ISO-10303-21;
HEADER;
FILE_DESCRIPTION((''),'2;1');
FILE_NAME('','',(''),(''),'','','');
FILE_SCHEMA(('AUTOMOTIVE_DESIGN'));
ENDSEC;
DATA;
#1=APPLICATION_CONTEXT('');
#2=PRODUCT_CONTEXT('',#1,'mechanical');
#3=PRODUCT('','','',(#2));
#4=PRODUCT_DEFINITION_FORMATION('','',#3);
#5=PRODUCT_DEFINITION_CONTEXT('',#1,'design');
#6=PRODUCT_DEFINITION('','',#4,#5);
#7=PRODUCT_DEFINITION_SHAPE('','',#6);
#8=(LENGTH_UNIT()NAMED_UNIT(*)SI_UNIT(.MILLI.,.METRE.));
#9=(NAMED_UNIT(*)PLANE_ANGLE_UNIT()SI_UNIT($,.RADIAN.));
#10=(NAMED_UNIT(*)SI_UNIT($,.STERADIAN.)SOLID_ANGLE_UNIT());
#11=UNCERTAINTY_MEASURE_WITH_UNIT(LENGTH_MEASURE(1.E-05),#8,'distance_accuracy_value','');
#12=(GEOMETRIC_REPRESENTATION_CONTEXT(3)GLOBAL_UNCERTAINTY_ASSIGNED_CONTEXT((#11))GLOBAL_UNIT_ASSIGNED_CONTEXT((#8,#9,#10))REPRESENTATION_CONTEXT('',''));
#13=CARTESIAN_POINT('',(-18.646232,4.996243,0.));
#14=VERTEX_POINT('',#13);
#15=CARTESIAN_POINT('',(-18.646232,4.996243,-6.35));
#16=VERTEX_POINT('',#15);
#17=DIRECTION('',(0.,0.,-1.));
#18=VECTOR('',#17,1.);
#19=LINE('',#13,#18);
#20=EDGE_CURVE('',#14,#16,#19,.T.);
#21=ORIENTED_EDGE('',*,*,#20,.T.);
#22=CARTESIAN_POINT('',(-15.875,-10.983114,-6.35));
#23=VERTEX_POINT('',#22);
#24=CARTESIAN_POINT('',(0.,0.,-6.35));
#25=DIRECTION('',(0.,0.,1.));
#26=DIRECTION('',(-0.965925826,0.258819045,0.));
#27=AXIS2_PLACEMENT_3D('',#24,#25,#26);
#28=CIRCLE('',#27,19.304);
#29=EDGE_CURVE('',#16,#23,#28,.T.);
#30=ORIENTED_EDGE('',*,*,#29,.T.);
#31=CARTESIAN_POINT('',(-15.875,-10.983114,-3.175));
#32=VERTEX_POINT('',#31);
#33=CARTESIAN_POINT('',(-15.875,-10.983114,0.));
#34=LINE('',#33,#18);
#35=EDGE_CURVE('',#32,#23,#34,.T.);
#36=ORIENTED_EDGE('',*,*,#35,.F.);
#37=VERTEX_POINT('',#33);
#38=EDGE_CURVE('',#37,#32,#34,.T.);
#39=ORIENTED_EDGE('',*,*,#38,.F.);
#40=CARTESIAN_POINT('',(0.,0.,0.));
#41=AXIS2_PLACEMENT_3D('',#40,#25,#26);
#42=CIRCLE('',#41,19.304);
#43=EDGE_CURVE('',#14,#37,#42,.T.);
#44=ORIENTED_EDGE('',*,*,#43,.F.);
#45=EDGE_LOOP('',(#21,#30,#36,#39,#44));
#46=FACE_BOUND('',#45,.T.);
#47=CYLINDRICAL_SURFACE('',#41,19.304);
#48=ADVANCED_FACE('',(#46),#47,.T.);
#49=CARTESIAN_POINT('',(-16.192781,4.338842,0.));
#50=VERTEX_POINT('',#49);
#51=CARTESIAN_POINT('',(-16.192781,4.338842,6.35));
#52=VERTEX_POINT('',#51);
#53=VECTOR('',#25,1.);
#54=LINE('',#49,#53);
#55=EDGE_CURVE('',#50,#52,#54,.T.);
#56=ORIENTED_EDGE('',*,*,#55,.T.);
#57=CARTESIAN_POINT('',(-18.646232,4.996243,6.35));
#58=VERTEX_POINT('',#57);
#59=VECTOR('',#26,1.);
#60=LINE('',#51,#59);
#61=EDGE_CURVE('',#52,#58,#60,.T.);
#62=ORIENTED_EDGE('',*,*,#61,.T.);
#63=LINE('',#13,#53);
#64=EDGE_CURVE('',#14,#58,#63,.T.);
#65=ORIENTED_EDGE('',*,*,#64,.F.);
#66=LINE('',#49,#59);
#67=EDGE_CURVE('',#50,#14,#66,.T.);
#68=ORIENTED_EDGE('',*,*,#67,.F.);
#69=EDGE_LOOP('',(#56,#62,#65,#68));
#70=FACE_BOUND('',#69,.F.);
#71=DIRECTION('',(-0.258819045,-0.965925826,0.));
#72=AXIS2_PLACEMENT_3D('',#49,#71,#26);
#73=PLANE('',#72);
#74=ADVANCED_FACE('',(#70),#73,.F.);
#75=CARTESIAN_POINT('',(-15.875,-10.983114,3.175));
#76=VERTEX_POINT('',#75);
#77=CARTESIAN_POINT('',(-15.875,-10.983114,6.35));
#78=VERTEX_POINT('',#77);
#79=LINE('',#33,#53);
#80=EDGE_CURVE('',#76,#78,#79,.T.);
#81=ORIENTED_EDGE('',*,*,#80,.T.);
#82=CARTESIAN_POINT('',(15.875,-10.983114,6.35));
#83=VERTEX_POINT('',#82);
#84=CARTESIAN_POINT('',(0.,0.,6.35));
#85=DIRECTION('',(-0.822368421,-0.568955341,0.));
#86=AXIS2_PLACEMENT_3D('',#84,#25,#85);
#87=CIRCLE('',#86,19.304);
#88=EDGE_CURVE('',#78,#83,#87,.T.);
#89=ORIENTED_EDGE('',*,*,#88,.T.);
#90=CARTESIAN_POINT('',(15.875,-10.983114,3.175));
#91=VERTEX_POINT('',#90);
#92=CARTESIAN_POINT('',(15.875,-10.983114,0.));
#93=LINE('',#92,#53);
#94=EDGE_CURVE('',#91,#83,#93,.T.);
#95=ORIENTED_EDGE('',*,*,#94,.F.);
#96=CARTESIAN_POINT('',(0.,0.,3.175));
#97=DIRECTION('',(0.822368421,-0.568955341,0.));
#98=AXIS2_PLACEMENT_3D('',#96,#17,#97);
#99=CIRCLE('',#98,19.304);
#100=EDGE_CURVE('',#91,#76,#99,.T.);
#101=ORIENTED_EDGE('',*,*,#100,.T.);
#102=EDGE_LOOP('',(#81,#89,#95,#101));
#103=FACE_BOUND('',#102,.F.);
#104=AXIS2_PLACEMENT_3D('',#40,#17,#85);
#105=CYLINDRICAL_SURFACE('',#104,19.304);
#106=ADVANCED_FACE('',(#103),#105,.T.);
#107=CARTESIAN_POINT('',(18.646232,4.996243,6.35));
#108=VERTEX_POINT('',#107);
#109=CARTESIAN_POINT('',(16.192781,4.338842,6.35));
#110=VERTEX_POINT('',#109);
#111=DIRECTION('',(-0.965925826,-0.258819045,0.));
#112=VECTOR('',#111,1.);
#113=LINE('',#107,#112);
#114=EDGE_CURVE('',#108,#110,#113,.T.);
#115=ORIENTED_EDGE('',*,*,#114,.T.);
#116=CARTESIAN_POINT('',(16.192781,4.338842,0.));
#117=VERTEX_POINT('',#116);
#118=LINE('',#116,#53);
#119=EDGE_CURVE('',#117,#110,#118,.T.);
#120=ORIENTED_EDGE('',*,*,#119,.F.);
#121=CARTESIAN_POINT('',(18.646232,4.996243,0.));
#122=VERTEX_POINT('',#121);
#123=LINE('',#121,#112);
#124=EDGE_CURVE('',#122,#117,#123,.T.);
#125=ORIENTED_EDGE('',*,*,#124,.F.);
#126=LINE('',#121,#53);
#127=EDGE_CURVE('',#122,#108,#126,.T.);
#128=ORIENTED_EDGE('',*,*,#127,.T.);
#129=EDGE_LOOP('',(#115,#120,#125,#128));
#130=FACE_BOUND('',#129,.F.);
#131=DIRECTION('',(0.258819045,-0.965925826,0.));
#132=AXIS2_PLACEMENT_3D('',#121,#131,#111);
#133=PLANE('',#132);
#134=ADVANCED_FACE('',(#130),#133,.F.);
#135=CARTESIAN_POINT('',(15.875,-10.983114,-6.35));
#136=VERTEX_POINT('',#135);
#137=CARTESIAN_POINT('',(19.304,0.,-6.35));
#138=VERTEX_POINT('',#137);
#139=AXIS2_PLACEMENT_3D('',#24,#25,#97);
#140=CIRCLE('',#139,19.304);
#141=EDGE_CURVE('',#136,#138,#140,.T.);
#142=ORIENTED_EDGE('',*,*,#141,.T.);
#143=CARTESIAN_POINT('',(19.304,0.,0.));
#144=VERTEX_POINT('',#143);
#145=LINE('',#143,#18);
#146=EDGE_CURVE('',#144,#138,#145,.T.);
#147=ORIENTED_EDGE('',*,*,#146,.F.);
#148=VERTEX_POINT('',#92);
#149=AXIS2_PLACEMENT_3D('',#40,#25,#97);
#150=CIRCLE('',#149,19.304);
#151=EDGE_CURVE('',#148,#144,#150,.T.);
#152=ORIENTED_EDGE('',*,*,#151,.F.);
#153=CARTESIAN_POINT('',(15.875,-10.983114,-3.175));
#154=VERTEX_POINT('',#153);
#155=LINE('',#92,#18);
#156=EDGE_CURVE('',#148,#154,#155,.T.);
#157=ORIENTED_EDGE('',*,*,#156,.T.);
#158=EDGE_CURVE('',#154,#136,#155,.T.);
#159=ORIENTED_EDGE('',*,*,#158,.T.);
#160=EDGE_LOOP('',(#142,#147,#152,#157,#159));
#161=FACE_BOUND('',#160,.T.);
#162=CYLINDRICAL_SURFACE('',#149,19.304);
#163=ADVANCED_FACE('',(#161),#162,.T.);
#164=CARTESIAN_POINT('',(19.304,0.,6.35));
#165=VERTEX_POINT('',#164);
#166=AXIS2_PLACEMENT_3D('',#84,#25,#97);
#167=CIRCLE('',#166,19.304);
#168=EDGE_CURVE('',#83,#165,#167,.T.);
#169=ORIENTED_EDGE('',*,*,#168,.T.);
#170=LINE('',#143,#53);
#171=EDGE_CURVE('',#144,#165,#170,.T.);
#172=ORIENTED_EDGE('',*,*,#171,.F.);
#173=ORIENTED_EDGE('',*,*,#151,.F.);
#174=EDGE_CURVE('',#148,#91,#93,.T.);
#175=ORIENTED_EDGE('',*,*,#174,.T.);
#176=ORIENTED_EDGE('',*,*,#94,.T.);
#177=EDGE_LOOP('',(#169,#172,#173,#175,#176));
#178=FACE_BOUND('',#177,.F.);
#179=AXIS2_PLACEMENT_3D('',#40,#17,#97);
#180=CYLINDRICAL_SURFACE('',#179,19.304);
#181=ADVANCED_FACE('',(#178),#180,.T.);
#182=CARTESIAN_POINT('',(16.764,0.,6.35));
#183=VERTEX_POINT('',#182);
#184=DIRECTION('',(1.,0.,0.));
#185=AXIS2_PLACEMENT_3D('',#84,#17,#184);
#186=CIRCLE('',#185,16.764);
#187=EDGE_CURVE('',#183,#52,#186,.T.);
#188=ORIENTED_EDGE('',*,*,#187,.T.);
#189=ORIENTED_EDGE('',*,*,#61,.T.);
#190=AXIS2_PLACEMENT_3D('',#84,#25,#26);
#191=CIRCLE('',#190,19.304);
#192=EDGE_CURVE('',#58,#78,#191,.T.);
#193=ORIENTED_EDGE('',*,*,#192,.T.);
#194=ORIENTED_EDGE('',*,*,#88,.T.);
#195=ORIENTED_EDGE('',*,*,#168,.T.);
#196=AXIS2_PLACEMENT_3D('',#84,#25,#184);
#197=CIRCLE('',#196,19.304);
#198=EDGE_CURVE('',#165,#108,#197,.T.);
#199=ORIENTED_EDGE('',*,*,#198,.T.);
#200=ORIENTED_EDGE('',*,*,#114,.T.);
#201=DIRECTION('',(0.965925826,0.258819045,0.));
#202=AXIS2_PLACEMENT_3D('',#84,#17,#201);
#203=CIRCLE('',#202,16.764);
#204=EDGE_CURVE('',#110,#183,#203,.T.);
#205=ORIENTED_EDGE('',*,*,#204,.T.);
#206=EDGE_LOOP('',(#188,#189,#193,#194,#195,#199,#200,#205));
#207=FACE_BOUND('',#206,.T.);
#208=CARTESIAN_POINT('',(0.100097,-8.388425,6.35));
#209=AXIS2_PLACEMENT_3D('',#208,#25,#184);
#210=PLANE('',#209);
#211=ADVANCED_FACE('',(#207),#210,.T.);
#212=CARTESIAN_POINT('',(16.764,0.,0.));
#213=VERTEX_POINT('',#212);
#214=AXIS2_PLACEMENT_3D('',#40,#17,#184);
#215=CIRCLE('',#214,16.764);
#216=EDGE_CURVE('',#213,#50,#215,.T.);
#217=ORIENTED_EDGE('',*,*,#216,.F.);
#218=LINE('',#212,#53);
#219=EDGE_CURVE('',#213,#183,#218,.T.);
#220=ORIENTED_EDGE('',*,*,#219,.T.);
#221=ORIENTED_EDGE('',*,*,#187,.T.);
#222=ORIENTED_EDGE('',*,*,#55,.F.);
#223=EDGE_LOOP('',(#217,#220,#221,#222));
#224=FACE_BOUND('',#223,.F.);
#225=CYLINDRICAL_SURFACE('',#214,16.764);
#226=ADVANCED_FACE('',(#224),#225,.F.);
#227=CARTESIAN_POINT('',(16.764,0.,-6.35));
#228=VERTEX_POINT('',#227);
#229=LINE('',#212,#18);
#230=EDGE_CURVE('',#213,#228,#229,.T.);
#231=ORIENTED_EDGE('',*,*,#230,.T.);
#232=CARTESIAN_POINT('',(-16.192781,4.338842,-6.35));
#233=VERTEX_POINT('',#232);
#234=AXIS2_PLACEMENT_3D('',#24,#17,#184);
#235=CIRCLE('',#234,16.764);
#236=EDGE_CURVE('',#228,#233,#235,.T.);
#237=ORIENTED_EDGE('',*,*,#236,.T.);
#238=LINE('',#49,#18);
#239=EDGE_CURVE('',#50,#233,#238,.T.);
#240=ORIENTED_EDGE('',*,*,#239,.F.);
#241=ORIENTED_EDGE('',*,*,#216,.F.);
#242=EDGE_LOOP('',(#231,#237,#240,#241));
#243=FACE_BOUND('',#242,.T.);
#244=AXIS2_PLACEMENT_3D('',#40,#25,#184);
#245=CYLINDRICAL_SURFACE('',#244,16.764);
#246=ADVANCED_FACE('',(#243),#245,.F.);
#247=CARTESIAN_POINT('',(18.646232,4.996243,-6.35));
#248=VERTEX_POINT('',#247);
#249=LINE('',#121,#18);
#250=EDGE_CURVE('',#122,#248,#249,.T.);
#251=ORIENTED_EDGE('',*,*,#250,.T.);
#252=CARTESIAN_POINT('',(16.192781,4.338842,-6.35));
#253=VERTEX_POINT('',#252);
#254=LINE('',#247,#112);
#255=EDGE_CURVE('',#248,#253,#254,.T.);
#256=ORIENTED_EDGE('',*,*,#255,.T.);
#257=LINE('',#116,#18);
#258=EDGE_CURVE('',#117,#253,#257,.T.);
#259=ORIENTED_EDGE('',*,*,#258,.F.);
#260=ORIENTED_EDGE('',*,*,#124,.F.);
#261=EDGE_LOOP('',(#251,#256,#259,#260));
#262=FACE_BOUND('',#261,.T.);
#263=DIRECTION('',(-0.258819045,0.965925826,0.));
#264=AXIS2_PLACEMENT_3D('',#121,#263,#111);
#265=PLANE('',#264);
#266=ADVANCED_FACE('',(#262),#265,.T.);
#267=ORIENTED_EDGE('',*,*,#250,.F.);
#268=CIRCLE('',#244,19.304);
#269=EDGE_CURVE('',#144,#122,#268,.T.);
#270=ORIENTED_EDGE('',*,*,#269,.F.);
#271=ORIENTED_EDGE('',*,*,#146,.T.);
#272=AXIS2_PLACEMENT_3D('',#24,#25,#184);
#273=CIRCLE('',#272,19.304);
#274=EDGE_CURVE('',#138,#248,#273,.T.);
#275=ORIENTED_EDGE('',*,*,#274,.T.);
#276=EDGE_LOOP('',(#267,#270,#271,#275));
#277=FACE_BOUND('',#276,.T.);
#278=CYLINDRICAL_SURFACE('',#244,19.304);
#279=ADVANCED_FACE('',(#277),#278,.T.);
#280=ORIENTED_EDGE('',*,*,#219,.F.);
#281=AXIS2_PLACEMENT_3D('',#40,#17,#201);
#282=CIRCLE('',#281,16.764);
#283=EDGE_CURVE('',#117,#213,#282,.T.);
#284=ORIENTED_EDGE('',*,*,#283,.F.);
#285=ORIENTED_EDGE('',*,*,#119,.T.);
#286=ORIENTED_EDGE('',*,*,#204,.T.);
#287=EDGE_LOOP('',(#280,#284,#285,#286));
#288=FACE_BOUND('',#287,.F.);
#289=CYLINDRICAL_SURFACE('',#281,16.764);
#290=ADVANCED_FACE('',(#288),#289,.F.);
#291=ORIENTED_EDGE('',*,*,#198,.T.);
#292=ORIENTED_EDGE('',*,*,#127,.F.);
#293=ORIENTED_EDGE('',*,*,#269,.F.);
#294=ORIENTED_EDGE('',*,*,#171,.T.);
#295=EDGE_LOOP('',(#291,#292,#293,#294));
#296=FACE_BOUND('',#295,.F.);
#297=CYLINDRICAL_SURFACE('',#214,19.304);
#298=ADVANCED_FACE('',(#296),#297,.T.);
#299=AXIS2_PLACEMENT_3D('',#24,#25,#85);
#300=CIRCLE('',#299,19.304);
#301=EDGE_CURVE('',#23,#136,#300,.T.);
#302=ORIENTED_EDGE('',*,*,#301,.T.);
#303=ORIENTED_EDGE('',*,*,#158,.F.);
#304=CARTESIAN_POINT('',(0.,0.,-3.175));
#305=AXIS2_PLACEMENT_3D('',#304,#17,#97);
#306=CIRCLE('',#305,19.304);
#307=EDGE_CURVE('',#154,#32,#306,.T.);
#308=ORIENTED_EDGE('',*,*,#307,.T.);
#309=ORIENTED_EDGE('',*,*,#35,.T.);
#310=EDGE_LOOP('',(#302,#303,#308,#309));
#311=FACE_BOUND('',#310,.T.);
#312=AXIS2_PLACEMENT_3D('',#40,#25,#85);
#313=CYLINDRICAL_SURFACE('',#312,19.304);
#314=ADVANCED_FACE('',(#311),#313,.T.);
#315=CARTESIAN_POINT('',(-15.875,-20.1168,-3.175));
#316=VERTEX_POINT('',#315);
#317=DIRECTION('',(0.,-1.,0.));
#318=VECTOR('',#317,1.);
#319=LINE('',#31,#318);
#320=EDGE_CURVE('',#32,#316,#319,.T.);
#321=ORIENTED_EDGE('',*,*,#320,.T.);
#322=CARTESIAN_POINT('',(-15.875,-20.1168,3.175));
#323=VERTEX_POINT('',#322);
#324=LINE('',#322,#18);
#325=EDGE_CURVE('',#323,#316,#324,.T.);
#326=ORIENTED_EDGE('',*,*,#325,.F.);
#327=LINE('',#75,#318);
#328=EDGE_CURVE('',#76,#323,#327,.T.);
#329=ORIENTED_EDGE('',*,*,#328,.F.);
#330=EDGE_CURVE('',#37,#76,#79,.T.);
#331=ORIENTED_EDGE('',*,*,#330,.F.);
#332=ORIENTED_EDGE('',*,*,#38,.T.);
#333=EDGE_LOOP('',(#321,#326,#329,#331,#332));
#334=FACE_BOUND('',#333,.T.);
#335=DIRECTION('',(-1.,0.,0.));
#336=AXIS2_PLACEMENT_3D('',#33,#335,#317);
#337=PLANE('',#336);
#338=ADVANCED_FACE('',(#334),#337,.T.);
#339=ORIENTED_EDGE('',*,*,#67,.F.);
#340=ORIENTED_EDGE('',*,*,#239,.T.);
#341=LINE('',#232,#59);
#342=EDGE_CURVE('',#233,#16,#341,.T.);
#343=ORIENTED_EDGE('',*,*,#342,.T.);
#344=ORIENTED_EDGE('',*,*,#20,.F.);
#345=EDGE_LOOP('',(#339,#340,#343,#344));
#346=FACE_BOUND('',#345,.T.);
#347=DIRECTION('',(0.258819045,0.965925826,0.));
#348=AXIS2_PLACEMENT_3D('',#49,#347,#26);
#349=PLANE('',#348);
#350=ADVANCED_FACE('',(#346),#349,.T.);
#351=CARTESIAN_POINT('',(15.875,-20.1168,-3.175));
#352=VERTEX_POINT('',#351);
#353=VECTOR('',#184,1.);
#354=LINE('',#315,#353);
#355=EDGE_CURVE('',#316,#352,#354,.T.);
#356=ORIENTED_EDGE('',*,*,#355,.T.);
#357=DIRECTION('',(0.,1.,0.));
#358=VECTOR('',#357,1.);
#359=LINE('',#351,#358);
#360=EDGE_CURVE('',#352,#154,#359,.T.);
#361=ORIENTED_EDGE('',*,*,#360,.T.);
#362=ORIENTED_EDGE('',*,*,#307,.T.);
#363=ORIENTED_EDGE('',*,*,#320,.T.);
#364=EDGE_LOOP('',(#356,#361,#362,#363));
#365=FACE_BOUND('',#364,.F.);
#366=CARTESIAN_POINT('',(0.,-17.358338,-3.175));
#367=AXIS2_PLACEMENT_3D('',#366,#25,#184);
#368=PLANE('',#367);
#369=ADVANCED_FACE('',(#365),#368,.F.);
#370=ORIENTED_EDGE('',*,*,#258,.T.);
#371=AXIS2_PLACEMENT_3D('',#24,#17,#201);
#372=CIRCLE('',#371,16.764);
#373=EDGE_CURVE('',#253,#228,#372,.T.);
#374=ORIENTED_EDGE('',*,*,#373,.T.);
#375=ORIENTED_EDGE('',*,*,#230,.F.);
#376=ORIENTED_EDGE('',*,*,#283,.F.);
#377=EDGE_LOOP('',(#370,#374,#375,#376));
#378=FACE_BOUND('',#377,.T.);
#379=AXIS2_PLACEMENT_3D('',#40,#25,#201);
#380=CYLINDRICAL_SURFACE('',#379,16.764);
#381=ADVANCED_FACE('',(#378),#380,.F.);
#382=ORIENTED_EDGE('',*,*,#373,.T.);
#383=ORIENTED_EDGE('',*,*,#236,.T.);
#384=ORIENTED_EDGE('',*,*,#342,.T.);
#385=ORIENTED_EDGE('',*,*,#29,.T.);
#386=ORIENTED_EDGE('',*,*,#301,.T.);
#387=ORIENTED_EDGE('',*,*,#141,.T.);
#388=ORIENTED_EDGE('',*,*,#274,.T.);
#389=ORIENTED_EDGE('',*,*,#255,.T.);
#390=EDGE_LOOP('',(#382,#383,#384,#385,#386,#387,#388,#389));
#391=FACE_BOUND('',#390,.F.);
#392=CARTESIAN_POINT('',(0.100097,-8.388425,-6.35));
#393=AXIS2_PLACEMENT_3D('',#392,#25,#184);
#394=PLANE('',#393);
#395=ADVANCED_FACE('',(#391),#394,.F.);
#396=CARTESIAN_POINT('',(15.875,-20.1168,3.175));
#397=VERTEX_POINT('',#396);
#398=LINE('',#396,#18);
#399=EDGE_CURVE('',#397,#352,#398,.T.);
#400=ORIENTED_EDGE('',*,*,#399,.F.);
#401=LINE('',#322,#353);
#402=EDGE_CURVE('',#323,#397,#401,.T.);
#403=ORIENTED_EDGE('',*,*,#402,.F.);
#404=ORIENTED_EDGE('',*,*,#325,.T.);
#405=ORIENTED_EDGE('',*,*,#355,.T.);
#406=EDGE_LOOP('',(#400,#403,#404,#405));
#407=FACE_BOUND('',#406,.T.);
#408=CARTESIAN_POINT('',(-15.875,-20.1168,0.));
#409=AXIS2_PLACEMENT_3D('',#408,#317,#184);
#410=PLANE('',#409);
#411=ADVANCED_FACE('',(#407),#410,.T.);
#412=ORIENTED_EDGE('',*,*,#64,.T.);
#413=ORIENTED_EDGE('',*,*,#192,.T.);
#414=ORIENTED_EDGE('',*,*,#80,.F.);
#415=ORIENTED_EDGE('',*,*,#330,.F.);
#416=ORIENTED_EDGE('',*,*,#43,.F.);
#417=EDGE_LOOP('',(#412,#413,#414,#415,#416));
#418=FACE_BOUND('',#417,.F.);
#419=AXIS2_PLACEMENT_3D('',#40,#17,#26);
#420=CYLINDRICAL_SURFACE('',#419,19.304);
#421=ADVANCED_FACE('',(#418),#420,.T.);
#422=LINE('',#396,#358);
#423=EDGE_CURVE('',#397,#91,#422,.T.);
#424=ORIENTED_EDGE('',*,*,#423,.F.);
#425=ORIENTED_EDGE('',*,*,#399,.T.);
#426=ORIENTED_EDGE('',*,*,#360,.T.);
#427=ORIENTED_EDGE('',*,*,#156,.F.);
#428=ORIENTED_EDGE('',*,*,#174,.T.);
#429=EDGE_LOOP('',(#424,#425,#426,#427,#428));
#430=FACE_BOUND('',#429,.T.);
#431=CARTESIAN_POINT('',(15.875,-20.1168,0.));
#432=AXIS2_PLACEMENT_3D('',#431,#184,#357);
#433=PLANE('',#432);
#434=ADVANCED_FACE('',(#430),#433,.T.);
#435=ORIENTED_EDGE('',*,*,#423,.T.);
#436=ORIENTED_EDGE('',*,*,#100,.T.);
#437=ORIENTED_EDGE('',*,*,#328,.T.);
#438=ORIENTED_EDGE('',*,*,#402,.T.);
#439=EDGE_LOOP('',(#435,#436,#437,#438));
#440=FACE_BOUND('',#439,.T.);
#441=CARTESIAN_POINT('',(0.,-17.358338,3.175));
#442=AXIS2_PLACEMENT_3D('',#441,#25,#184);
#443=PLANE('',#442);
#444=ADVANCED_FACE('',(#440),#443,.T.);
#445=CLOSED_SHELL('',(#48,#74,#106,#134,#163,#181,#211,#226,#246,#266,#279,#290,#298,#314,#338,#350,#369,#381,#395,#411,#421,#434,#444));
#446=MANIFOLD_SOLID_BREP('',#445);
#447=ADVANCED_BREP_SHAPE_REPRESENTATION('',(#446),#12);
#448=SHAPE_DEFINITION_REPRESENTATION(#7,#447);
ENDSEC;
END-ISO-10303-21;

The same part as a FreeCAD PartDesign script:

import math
import FreeCAD as App
import Part
import Sketcher
Q = App.Units.Quantity

doc = App.newDocument("Part")
body = doc.addObject("PartDesign::Body", "Body")

sketch1 = doc.addObject("Sketcher::SketchObject", "Sketch")
body.addObject(sketch1)
sketch1.AttachmentSupport = (doc.XY_Plane, [""])
sketch1.MapMode = "FlatFace"
sketch1.addGeometry([
    Part.ArcOfCircle(Part.Circle(App.Vector(0, 0, 0), App.Vector(0, 0, 1), 19.3), math.radians(-35), math.radians(0)),
    Part.ArcOfCircle(Part.Circle(App.Vector(0, 0, 0), App.Vector(0, 0, 1), 19.3), math.radians(0), math.radians(15)),
    Part.LineSegment(App.Vector(18.6, 5, 0), App.Vector(16.2, 4.3, 0)),
    Part.ArcOfCircle(Part.Circle(App.Vector(0, 0, 0), App.Vector(0, 0, 1), 16.8), math.radians(0), math.radians(15)),
    Part.ArcOfCircle(Part.Circle(App.Vector(0, 0, 0), App.Vector(0, 0, 1), 16.8), math.radians(165), math.radians(360)),
    Part.LineSegment(App.Vector(-16.2, 4.3, 0), App.Vector(-18.6, 5, 0)),
    Part.ArcOfCircle(Part.Circle(App.Vector(0, 0, 0), App.Vector(0, 0, 1), 19.3), math.radians(165), math.radians(215)),
    Part.ArcOfCircle(Part.Circle(App.Vector(0, 0, 0), App.Vector(0, 0, 1), 19.3), math.radians(-145), math.radians(-35)),
], False)
sketch1.addConstraint([
    Sketcher.Constraint("Tangent", 0, 2, 1, 1),
    Sketcher.Constraint("Coincident", 1, 2, 2, 1),
    Sketcher.Constraint("Coincident", 2, 2, 3, 2),
    Sketcher.Constraint("Tangent", 3, 1, 4, 2),
    Sketcher.Constraint("Coincident", 4, 1, 5, 1),
    Sketcher.Constraint("Coincident", 5, 2, 6, 1),
    Sketcher.Constraint("Tangent", 6, 2, 7, 1),
    Sketcher.Constraint("Tangent", 7, 2, 0, 1),
    Sketcher.Constraint("Coincident", 0, 3, -1, 1),
    Sketcher.Constraint("Coincident", 3, 3, -1, 1),
    Sketcher.Constraint("Coincident", 6, 3, -1, 1),
    Sketcher.Constraint("Equal", 0, 1),
    Sketcher.Constraint("Equal", 3, 4),
    Sketcher.Constraint("PointOnObject", 0, 2, -1),
    Sketcher.Constraint("PointOnObject", 3, 1, -1),
    Sketcher.Constraint("Horizontal", 2, 2, 4, 1),
    Sketcher.Constraint("Horizontal", 1, 2, 5, 2),
    Sketcher.Constraint("Horizontal", 6, 2, 7, 2),
    Sketcher.Constraint("Radius", 0, Q("0.76 in")),
    Sketcher.Constraint("Radius", 3, Q("0.66 in")),
    Sketcher.Constraint("Angle", 2, Q("-165 deg")),
    Sketcher.Constraint("DistanceX", 6, 2, -1, 1, Q("0.625 in")),
    Sketcher.Constraint("DistanceX", -1, 1, 2, 2, Q("16.192781 mm")),
])
pad1 = doc.addObject("PartDesign::Pad", "Pad")
body.addObject(pad1)
pad1.Profile = sketch1
pad1.Length = Q("0.5 in")
pad1.Midplane = True

sketch2 = doc.addObject("Sketcher::SketchObject", "Sketch001")
body.addObject(sketch2)
sketch2.AttachmentSupport = (doc.XY_Plane, [""])
sketch2.MapMode = "FlatFace"
sketch2.addGeometry([
    Part.LineSegment(App.Vector(16, -20, 0), App.Vector(16, -11, 0)),
    Part.ArcOfCircle(Part.Circle(App.Vector(0, 0, 0), App.Vector(0, 0, 1), 19), math.radians(-145), math.radians(-35)),
    Part.LineSegment(App.Vector(-16, -11, 0), App.Vector(-16, -20, 0)),
    Part.LineSegment(App.Vector(-16, -20, 0), App.Vector(16, -20, 0)),
], False)
sketch2.addConstraint([
    Sketcher.Constraint("Coincident", 0, 2, 1, 2),
    Sketcher.Constraint("Coincident", 1, 1, 2, 1),
    Sketcher.Constraint("Coincident", 2, 2, 3, 1),
    Sketcher.Constraint("Coincident", 3, 2, 0, 1),
    Sketcher.Constraint("Vertical", 0),
    Sketcher.Constraint("Vertical", 2),
    Sketcher.Constraint("Horizontal", 3),
    Sketcher.Constraint("Coincident", 1, 3, -1, 1),
    Sketcher.Constraint("Horizontal", 0, 2, 1, 1),
    Sketcher.Constraint("Radius", 1, Q("0.76 in")),
    Sketcher.Constraint("DistanceX", 3, 1, 3, 2, Q("1.25 in")),
    Sketcher.Constraint("DistanceY", 2, 2, -1, 1, Q("0.792 in")),
])
pad2 = doc.addObject("PartDesign::Pad", "Pad001")
body.addObject(pad2)
pad2.Profile = sketch2
pad2.Length = Q("0.25 in")
pad2.Midplane = True

doc.recompute()
